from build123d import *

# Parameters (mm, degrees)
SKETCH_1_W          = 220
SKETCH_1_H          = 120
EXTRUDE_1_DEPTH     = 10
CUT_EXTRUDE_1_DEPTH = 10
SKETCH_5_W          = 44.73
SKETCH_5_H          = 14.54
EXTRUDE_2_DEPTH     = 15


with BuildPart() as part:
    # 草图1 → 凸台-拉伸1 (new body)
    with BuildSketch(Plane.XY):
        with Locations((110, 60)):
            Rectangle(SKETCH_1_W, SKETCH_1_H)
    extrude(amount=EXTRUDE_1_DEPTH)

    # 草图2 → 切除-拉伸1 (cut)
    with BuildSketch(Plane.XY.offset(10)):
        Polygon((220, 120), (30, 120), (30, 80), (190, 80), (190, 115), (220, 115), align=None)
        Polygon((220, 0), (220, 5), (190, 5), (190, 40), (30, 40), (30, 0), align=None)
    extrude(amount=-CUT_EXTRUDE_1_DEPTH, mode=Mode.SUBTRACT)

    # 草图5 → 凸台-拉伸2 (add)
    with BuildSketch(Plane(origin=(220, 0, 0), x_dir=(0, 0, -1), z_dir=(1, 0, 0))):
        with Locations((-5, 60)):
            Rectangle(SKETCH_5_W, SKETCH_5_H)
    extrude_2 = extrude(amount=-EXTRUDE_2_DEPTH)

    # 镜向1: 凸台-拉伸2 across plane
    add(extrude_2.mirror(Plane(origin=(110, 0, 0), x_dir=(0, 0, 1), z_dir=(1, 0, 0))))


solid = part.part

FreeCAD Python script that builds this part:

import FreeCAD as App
import Part
import Sketcher

doc = App.newDocument("Part")
body = doc.addObject("PartDesign::Body", "Body")

sketch1 = body.newObject("Sketcher::SketchObject", "Sketch")
sketch1.AttachmentSupport = (doc.getObject("XY_Plane"), [""])
sketch1.MapMode = "FlatFace"
sketch1.addGeometry([
    Part.LineSegment(App.Vector(0, 120, 0), App.Vector(0, 0, 0)),
    Part.LineSegment(App.Vector(0, 0, 0), App.Vector(220, 0, 0)),
    Part.LineSegment(App.Vector(220, 0, 0), App.Vector(220, 120, 0)),
    Part.LineSegment(App.Vector(220, 120, 0), App.Vector(0, 120, 0)),
], False)
sketch1.addConstraint([
    Sketcher.Constraint("Coincident", 0, 2, 1, 1),
    Sketcher.Constraint("Coincident", 1, 2, 2, 1),
    Sketcher.Constraint("Coincident", 2, 2, 3, 1),
    Sketcher.Constraint("Coincident", 3, 2, 0, 1),
    Sketcher.Constraint("Vertical", 0),
    Sketcher.Constraint("Horizontal", 1),
    Sketcher.Constraint("Vertical", 2),
    Sketcher.Constraint("Horizontal", 3),
    Sketcher.Constraint("Coincident", 0, 2, -1, 1),
    Sketcher.Constraint("DistanceX", 1, 1, 1, 2, 220.0),
    Sketcher.Constraint("DistanceY", 0, 2, 0, 1, 120.0),
])
pad1 = body.newObject("PartDesign::Pad", "Pad")
pad1.Profile = sketch1
pad1.Length = 10

sketch2 = body.newObject("Sketcher::SketchObject", "Sketch001")
sketch2.AttachmentSupport = (doc.getObject("XY_Plane"), [""])
sketch2.MapMode = "FlatFace"
sketch2.AttachmentOffset = App.Placement(App.Vector(0, 0, 10), App.Rotation())
sketch2.addGeometry([
    Part.LineSegment(App.Vector(220, 120, 0), App.Vector(30, 120, 0)),
    Part.LineSegment(App.Vector(30, 120, 0), App.Vector(30, 80, 0)),
    Part.LineSegment(App.Vector(30, 80, 0), App.Vector(190, 80, 0)),
    Part.LineSegment(App.Vector(190, 80, 0), App.Vector(190, 115, 0)),
    Part.LineSegment(App.Vector(190, 115, 0), App.Vector(220, 115, 0)),
    Part.LineSegment(App.Vector(220, 115, 0), App.Vector(220, 120, 0)),
    Part.LineSegment(App.Vector(220, 0, 0), App.Vector(220, 5, 0)),
    Part.LineSegment(App.Vector(220, 5, 0), App.Vector(190, 5, 0)),
    Part.LineSegment(App.Vector(190, 5, 0), App.Vector(190, 40, 0)),
    Part.LineSegment(App.Vector(190, 40, 0), App.Vector(30, 40, 0)),
    Part.LineSegment(App.Vector(30, 40, 0), App.Vector(30, 0, 0)),
    Part.LineSegment(App.Vector(30, 0, 0), App.Vector(220, 0, 0)),
], False)
sketch2.addConstraint([
    Sketcher.Constraint("Coincident", 0, 2, 1, 1),
    Sketcher.Constraint("Coincident", 1, 2, 2, 1),
    Sketcher.Constraint("Coincident", 2, 2, 3, 1),
    Sketcher.Constraint("Coincident", 3, 2, 4, 1),
    Sketcher.Constraint("Coincident", 4, 2, 5, 1),
    Sketcher.Constraint("Coincident", 5, 2, 0, 1),
    Sketcher.Constraint("Coincident", 6, 2, 7, 1),
    Sketcher.Constraint("Coincident", 7, 2, 8, 1),
    Sketcher.Constraint("Coincident", 8, 2, 9, 1),
    Sketcher.Constraint("Coincident", 9, 2, 10, 1),
    Sketcher.Constraint("Coincident", 10, 2, 11, 1),
    Sketcher.Constraint("Coincident", 11, 2, 6, 1),
    Sketcher.Constraint("Horizontal", 0),
    Sketcher.Constraint("Vertical", 1),
    Sketcher.Constraint("Horizontal", 2),
    Sketcher.Constraint("Vertical", 3),
    Sketcher.Constraint("Horizontal", 4),
    Sketcher.Constraint("Vertical", 5),
    Sketcher.Constraint("Vertical", 6),
    Sketcher.Constraint("Horizontal", 7),
    Sketcher.Constraint("Vertical", 8),
    Sketcher.Constraint("Horizontal", 9),
    Sketcher.Constraint("Vertical", 10),
    Sketcher.Constraint("Horizontal", 11),
    Sketcher.Constraint("PointOnObject", 10, 2, -1),
    Sketcher.Constraint("Vertical", 5, 2, 6, 2),
    Sketcher.Constraint("Vertical", 3, 2, 7, 2),
    Sketcher.Constraint("Vertical", 1, 2, 9, 2),
    Sketcher.Constraint("Equal", 5, 6),
    Sketcher.Constraint("Equal", 3, 8),
    Sketcher.Constraint("DistanceX", 0, 2, 0, 1, 190.0),
    Sketcher.Constraint("DistanceX", 2, 1, 2, 2, 160.0),
    Sketcher.Constraint("DistanceY", 1, 2, 1, 1, 40.0),
    Sketcher.Constraint("DistanceY", 3, 1, 3, 2, 35.0),
    Sketcher.Constraint("DistanceX", -1, 1, 0, 2, 30.0),
    Sketcher.Constraint("DistanceY", -1, 1, 0, 2, 120.0),
])
pocket1 = body.newObject("PartDesign::Pocket", "Pocket")
pocket1.Profile = sketch2
pocket1.Length = 10

sketch3 = body.newObject("Sketcher::SketchObject", "Sketch002")
sketch3.AttachmentSupport = (doc.getObject("YZ_Plane"), [""])
sketch3.MapMode = "FlatFace"
sketch3.AttachmentOffset = App.Placement(App.Vector(0, 0, 220), App.Rotation())
sketch3.addGeometry([
    Part.LineSegment(App.Vector(67, 27, 0), App.Vector(53, 27, 0)),
    Part.LineSegment(App.Vector(53, 27, 0), App.Vector(53, -17, 0)),
    Part.LineSegment(App.Vector(53, -17, 0), App.Vector(67, -17, 0)),
    Part.LineSegment(App.Vector(67, -17, 0), App.Vector(67, 27, 0)),
], False)
sketch3.addConstraint([
    Sketcher.Constraint("Coincident", 0, 2, 1, 1),
    Sketcher.Constraint("Coincident", 1, 2, 2, 1),
    Sketcher.Constraint("Coincident", 2, 2, 3, 1),
    Sketcher.Constraint("Coincident", 3, 2, 0, 1),
    Sketcher.Constraint("Horizontal", 0),
    Sketcher.Constraint("Vertical", 1),
    Sketcher.Constraint("Horizontal", 2),
    Sketcher.Constraint("Vertical", 3),
    Sketcher.Constraint("DistanceX", 0, 2, 0, 1, 14.54),
    Sketcher.Constraint("DistanceY", 1, 2, 1, 1, 44.73),
    Sketcher.Constraint("DistanceX", -1, 1, 0, 2, 52.73),
    Sketcher.Constraint("DistanceY", -1, 1, 0, 2, 27.365),
])
pad2 = body.newObject("PartDesign::Pad", "Pad001")
pad2.Profile = sketch3
pad2.Length = 15
pad2.Reversed = True
doc.recompute()

datumplane = body.newObject("PartDesign::Plane", "DatumPlane")
datumplane.AttachmentSupport = (doc.getObject("YZ_Plane"), [""])
datumplane.MapMode = "FlatFace"
datumplane.AttachmentOffset = App.Placement(App.Vector(0, 0, 110), App.Rotation())
mirrored = body.newObject("PartDesign::Mirrored", "Mirrored")
mirrored.Originals = [pad2]
mirrored.MirrorPlane = (datumplane, [""])
body.Tip = mirrored

doc.recompute()
